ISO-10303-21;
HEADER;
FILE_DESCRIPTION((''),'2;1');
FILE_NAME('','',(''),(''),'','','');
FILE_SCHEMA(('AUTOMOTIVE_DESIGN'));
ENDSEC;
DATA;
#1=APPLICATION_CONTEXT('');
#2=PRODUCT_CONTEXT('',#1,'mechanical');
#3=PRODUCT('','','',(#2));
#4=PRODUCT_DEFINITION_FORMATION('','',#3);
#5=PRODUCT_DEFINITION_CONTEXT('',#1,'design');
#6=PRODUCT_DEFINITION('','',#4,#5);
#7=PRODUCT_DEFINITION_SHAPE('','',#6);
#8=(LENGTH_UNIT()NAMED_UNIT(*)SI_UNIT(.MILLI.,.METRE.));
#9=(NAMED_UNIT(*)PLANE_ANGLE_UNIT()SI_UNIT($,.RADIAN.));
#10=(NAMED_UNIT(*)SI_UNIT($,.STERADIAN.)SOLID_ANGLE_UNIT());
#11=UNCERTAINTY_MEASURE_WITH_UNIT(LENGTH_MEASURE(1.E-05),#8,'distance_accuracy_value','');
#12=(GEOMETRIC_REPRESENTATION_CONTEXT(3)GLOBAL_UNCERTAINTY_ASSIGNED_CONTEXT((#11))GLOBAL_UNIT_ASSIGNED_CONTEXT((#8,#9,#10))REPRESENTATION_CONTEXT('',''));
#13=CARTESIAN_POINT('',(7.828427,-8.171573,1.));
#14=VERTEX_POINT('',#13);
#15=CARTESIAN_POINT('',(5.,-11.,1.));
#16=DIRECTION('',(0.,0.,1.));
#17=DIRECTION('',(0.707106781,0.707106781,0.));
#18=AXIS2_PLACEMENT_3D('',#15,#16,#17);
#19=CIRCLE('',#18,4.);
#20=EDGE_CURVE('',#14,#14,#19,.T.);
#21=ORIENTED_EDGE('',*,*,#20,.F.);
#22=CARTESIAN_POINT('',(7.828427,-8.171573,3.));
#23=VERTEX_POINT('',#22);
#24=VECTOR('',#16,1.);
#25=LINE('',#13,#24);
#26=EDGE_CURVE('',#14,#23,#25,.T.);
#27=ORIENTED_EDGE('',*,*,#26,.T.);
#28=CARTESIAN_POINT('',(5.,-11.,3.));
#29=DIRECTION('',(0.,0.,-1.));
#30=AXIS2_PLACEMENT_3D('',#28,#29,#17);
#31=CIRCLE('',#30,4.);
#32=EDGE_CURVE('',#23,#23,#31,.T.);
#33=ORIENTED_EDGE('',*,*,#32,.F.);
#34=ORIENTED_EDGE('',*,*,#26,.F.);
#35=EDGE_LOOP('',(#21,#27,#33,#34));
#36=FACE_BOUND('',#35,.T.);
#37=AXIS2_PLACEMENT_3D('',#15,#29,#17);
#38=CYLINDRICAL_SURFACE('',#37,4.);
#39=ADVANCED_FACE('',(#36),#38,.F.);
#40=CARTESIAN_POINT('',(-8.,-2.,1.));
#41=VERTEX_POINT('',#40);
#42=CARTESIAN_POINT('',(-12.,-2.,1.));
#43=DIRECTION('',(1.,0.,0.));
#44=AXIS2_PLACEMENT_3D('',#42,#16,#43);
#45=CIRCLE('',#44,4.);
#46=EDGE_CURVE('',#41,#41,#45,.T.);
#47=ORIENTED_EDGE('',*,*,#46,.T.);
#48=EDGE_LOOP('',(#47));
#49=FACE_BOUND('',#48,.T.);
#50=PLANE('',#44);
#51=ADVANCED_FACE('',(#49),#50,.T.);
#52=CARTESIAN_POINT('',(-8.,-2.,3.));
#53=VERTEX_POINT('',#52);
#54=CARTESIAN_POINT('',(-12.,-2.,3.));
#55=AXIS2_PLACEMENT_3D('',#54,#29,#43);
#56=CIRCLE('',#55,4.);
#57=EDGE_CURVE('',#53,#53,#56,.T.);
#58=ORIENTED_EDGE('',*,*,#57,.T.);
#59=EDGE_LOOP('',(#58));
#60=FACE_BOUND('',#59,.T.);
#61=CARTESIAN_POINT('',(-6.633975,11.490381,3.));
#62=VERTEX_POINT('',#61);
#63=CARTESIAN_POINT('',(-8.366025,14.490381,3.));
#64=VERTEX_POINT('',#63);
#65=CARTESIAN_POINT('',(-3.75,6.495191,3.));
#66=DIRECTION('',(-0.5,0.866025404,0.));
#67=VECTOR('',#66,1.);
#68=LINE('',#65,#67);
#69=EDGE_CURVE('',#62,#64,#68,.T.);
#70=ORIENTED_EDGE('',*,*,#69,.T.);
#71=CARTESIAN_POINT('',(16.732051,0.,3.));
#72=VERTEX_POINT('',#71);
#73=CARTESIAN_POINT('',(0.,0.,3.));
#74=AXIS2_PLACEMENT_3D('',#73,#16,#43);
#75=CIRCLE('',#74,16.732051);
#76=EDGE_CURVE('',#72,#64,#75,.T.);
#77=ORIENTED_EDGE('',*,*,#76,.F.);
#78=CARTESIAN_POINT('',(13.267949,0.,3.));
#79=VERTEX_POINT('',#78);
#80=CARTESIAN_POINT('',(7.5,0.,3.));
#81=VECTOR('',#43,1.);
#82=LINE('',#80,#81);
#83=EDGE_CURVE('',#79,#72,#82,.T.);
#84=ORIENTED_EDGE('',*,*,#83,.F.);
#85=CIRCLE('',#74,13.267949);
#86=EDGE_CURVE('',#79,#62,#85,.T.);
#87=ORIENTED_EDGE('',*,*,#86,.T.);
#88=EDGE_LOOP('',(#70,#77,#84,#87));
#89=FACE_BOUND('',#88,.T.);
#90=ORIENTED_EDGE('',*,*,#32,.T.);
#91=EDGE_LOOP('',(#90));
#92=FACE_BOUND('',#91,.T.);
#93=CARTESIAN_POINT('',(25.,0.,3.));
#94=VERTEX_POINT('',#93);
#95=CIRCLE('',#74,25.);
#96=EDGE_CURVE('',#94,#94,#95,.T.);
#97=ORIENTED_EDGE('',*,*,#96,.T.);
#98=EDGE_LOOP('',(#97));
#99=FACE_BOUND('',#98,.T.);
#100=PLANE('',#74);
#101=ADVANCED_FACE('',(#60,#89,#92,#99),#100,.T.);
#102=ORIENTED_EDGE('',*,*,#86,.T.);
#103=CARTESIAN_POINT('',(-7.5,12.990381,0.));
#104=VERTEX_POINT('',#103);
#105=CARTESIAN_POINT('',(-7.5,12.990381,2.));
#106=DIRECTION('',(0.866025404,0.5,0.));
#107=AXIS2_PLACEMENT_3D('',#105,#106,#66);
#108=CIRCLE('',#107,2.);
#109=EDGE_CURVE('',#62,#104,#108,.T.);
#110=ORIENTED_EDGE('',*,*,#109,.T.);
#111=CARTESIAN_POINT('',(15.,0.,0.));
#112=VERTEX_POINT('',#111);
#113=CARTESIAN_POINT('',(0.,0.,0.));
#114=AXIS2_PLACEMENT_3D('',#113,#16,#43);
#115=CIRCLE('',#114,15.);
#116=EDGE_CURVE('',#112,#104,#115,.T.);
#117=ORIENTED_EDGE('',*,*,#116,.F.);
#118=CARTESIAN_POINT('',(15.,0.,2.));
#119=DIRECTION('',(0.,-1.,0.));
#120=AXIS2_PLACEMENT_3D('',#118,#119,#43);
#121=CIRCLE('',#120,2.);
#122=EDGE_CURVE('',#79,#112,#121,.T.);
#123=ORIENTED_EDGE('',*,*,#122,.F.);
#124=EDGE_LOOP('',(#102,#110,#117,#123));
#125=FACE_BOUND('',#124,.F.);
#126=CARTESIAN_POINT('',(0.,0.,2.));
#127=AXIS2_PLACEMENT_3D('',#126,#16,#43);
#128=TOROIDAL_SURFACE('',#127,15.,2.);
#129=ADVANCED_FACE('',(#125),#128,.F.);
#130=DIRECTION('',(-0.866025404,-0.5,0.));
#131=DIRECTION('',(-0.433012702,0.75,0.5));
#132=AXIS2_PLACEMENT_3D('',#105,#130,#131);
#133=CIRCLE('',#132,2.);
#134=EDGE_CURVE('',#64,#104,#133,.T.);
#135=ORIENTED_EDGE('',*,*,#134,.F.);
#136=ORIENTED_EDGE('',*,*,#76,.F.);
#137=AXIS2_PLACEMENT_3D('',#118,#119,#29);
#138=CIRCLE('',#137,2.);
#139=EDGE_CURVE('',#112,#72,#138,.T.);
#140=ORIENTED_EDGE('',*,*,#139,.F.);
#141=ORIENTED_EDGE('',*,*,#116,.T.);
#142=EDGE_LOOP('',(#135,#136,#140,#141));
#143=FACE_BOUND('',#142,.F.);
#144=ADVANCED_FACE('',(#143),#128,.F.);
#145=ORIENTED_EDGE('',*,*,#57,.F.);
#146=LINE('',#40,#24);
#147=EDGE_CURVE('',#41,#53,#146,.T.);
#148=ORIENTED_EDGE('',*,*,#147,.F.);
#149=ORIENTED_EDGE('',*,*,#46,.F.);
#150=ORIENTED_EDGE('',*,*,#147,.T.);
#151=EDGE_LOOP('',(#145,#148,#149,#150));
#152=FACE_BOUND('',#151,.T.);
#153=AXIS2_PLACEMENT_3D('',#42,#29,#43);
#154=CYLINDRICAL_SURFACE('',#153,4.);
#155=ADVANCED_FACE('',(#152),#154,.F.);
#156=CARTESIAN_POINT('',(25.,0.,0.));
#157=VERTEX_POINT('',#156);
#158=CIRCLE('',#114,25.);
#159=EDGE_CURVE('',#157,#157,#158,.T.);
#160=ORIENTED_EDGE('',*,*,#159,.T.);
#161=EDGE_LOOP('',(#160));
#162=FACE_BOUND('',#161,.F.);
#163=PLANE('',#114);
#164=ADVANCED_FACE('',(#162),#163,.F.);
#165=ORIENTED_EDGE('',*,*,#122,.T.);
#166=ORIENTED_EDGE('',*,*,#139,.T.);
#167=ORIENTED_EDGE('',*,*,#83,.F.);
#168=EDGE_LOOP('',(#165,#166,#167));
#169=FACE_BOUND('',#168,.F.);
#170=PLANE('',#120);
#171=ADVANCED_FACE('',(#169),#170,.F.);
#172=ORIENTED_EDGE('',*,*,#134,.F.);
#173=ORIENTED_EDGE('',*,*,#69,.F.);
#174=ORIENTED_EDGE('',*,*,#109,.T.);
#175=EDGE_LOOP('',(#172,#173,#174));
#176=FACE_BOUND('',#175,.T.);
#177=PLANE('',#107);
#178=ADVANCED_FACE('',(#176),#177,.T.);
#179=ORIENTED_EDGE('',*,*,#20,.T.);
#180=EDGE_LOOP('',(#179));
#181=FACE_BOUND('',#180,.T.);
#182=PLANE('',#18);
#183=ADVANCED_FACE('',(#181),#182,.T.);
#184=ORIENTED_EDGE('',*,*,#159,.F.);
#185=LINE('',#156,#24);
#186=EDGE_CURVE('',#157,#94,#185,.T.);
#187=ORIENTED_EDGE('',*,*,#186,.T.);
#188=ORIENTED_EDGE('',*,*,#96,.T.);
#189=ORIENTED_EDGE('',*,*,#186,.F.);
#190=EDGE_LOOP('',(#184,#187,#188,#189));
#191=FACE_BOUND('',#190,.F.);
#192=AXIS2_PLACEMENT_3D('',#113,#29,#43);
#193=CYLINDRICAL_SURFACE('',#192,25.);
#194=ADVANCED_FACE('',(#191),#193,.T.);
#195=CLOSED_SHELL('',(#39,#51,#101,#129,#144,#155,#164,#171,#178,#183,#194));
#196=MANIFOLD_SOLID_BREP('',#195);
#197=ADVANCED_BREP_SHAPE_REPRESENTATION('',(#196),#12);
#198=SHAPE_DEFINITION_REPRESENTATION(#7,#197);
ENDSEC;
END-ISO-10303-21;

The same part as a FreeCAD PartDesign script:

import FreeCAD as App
import Part
import Sketcher
from FreeCAD import Vector
Q = App.Units.Quantity

doc = App.newDocument("Part")
body = doc.addObject("PartDesign::Body", "Body")

# Sketch on XY plane
sketch1 = doc.addObject("Sketcher::SketchObject", "Sketch")
body.addObject(sketch1)
sketch1.AttachmentSupport = (doc.XY_Plane, [""])
sketch1.MapMode = "FlatFace"
sketch1.addGeometry(Part.Circle(Vector(0, 0, 0), Vector(0, 0, 1), 4), False)
sketch1.addConstraint(Sketcher.Constraint("Coincident", 0, 3, -1, 1))
sketch1.addConstraint(Sketcher.Constraint("Diameter", 0, Q("8 mm")))
pad1 = doc.addObject("PartDesign::Pad", "Pad")
body.addObject(pad1)
pad1.Profile = sketch1
pad1.Length = 4
body2 = doc.addObject("PartDesign::Body", "Body001")
doc.recompute()

body.Placement = App.Placement(Vector(5, -11, 1), App.Rotation(Vector(0, 0, 1), 45))
boolean = doc.addObject("PartDesign::Boolean", "Boolean")
body2.addObject(boolean)
boolean.Type = "Fuse"
boolean.addObjects([body])
body3 = doc.addObject("PartDesign::Body", "Body002")

# Sketch on XY plane
sketch2 = doc.addObject("Sketcher::SketchObject", "Sketch001")
body3.addObject(sketch2)
sketch2.AttachmentSupport = (doc.getObject("XY_Plane002"), [""])
sketch2.MapMode = "FlatFace"
sketch2.AttachmentOffset = App.Placement(Vector(0, 0, 1), App.Rotation())
sketch2.addGeometry(Part.Circle(Vector(-12, -2, 0), Vector(0, 0, 1), 4), False)
sketch2.addConstraint(Sketcher.Constraint("Diameter", 0, Q("8 mm")))
sketch2.addConstraint(Sketcher.Constraint("DistanceX", 0, 3, -1, 1, Q("12 mm")))
sketch2.addConstraint(Sketcher.Constraint("DistanceY", 0, 3, -1, 1, Q("2 mm")))
pad2 = doc.addObject("PartDesign::Pad", "Pad001")
body3.addObject(pad2)
pad2.Profile = sketch2
pad2.Length = 10
body4 = doc.addObject("PartDesign::Body", "Body003")

# Sketch on XZ plane
sketch3 = doc.addObject("Sketcher::SketchObject", "Sketch002")
body4.addObject(sketch3)
sketch3.AttachmentSupport = (doc.getObject("XZ_Plane003"), [""])
sketch3.MapMode = "FlatFace"
sketch3.addGeometry(Part.Circle(Vector(15, 2, 0), Vector(0, 0, 1), 2), False)
sketch3.addConstraint(Sketcher.Constraint("Diameter", 0, Q("4 mm")))
sketch3.addConstraint(Sketcher.Constraint("DistanceX", -1, 1, 0, 3, Q("15 mm")))
sketch3.addConstraint(Sketcher.Constraint("DistanceY", -1, 1, 0, 3, Q("2 mm")))
revolution = doc.addObject("PartDesign::Revolution", "Revolution")
body4.addObject(revolution)
revolution.Profile = sketch3
revolution.ReferenceAxis = (sketch3, ["V_Axis"])
revolution.Angle = 120
body5 = doc.addObject("PartDesign::Body", "Body004")

# Sketch on XY plane
sketch4 = doc.addObject("Sketcher::SketchObject", "Sketch003")
body5.addObject(sketch4)
sketch4.AttachmentSupport = (doc.getObject("XY_Plane004"), [""])
sketch4.MapMode = "FlatFace"
sketch4.addGeometry(Part.Circle(Vector(0, 0, 0), Vector(0, 0, 1), 25), False)
sketch4.addConstraint(Sketcher.Constraint("Coincident", 0, 3, -1, 1))
sketch4.addConstraint(Sketcher.Constraint("Diameter", 0, Q("50 mm")))
pad3 = doc.addObject("PartDesign::Pad", "Pad002")
body5.addObject(pad3)
pad3.Profile = sketch4
pad3.Length = 3
doc.recompute()

boolean2 = doc.addObject("PartDesign::Boolean", "Boolean001")
body5.addObject(boolean2)
boolean2.Type = "Cut"
boolean2.addObjects([body4])
doc.recompute()

boolean3 = doc.addObject("PartDesign::Boolean", "Boolean002")
body5.addObject(boolean3)
boolean3.Type = "Cut"
boolean3.addObjects([body3])
doc.recompute()

boolean4 = doc.addObject("PartDesign::Boolean", "Boolean003")
body5.addObject(boolean4)
boolean4.Type = "Cut"
boolean4.addObjects([body2])

doc.recompute()
